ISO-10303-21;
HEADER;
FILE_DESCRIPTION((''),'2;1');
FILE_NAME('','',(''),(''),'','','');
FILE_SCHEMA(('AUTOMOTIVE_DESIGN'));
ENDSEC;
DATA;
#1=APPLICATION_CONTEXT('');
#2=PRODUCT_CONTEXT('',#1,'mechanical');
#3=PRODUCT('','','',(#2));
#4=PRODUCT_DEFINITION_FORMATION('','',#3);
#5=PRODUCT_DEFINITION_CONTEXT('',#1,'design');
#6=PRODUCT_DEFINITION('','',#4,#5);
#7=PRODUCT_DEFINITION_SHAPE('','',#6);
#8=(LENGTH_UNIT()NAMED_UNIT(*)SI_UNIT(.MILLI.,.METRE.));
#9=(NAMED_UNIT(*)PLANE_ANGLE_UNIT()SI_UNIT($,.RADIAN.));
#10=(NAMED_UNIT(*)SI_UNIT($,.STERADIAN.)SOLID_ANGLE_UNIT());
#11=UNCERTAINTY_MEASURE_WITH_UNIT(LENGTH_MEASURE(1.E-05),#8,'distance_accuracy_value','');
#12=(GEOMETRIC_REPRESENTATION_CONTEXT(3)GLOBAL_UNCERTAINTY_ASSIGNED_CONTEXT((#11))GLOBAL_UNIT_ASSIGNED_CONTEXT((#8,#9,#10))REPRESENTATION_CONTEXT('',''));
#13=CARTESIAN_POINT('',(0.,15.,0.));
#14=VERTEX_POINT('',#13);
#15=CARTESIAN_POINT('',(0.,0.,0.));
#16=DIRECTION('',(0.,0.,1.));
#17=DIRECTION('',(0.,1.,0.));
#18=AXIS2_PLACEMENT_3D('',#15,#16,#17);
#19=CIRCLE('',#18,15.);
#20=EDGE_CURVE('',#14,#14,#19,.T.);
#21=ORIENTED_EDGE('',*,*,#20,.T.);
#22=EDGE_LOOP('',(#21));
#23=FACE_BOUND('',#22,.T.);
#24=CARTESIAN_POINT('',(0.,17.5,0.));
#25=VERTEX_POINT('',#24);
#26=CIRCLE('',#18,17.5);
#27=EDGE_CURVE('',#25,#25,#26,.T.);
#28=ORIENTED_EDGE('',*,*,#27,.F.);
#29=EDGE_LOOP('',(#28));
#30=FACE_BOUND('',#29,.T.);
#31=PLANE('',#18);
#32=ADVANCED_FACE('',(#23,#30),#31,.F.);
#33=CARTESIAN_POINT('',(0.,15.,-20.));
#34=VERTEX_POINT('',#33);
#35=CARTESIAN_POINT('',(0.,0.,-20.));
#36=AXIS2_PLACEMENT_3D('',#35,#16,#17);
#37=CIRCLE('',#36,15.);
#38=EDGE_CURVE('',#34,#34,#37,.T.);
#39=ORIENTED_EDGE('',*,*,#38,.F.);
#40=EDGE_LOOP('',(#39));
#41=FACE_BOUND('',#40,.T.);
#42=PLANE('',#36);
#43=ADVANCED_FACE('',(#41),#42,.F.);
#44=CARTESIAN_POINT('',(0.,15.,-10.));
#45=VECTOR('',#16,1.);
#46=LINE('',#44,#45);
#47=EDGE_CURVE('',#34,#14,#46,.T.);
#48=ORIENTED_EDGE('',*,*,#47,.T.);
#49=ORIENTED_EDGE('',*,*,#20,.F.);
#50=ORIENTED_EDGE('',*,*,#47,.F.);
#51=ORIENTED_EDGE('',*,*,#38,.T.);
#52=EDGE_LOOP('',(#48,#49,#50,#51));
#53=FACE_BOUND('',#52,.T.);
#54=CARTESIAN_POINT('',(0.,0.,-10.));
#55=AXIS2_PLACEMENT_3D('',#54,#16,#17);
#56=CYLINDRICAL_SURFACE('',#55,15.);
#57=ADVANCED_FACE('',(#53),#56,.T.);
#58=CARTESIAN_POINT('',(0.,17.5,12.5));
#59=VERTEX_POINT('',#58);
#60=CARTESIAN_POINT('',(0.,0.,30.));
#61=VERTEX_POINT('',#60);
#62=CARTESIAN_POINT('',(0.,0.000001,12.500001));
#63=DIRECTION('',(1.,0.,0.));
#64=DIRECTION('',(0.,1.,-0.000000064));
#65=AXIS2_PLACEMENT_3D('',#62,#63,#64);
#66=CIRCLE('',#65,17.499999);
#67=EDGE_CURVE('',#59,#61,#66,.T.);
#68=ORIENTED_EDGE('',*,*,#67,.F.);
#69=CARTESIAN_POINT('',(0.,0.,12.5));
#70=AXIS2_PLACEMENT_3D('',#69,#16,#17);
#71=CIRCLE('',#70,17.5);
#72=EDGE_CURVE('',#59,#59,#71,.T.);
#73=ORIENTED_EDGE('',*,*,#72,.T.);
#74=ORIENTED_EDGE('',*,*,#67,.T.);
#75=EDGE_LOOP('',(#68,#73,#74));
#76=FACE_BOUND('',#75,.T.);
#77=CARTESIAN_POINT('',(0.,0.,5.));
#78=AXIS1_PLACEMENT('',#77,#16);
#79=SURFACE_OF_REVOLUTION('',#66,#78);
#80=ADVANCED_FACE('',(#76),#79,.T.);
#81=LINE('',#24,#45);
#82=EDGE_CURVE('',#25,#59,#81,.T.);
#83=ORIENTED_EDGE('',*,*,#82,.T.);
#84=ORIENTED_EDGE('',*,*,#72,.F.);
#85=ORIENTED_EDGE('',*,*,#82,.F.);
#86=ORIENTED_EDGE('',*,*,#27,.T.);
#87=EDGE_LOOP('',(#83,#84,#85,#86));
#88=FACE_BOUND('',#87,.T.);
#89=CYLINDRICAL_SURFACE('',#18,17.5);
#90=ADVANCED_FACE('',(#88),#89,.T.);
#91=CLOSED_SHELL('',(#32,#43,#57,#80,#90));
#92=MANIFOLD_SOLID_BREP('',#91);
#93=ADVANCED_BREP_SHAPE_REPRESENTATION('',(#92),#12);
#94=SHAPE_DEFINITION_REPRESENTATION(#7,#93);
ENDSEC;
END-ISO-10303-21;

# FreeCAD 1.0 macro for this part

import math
import FreeCAD as App
import Part
import Sketcher
from FreeCAD import Vector

doc = App.newDocument("Part")
body = doc.addObject("PartDesign::Body", "Body")

sketch1 = doc.addObject("Sketcher::SketchObject", "Sketch")
body.addObject(sketch1)
sketch1.AttachmentSupport = (doc.YZ_Plane, [""])
sketch1.MapMode = "FlatFace"
sketch1.addGeometry(Part.LineSegment(Vector(0, 30, 0), Vector(0, -20, 0)), False)
sketch1.addGeometry(Part.LineSegment(Vector(0, -20, 0), Vector(15, -20, 0)), False)
sketch1.addGeometry(Part.LineSegment(Vector(15, -20, 0), Vector(15, 0, 0)), False)
sketch1.addGeometry(Part.LineSegment(Vector(15, 0, 0), Vector(17.5, 0, 0)), False)
sketch1.addGeometry(Part.LineSegment(Vector(17.5, 0, 0), Vector(17.5, 12.5, 0)), False)
sketch1.addGeometry(Part.ArcOfCircle(Part.Circle(Vector(0.000001, 12.500001, 0), Vector(0, 0, 1), 17.499999), math.radians(-0.000004), math.radians(90.000004)), False)
sketch1.addConstraint(Sketcher.Constraint("Coincident", 0, 2, 1, 1))
sketch1.addConstraint(Sketcher.Constraint("Coincident", 1, 2, 2, 1))
sketch1.addConstraint(Sketcher.Constraint("Coincident", 2, 2, 3, 1))
sketch1.addConstraint(Sketcher.Constraint("Coincident", 3, 2, 4, 1))
sketch1.addConstraint(Sketcher.Constraint("Tangent", 4, 2, 5, 1))
sketch1.addConstraint(Sketcher.Constraint("Coincident", 5, 2, 0, 1))
sketch1.addConstraint(Sketcher.Constraint("Vertical", 0))
sketch1.addConstraint(Sketcher.Constraint("Horizontal", 1))
sketch1.addConstraint(Sketcher.Constraint("Vertical", 2))
sketch1.addConstraint(Sketcher.Constraint("Horizontal", 3))
sketch1.addConstraint(Sketcher.Constraint("Vertical", 4))
sketch1.addConstraint(Sketcher.Constraint("PointOnObject", 5, 3, -2))
sketch1.addConstraint(Sketcher.Constraint("PointOnObject", 0, 2, -2))
sketch1.addConstraint(Sketcher.Constraint("PointOnObject", 2, 2, -1))
sketch1.addConstraint(Sketcher.Constraint("Radius", 5, 17.499999))
sketch1.addConstraint(Sketcher.Constraint("DistanceX", 1, 1, 1, 2, 15.0))
sketch1.addConstraint(Sketcher.Constraint("DistanceY", 0, 2, 0, 1, 50.0))
sketch1.addConstraint(Sketcher.Constraint("DistanceY", 2, 1, 2, 2, 20.0))
revolution = doc.addObject("PartDesign::Revolution", "Revolution")
body.addObject(revolution)
revolution.Profile = sketch1
revolution.ReferenceAxis = (sketch1, ["V_Axis"])
revolution.Angle = 360

doc.recompute()
